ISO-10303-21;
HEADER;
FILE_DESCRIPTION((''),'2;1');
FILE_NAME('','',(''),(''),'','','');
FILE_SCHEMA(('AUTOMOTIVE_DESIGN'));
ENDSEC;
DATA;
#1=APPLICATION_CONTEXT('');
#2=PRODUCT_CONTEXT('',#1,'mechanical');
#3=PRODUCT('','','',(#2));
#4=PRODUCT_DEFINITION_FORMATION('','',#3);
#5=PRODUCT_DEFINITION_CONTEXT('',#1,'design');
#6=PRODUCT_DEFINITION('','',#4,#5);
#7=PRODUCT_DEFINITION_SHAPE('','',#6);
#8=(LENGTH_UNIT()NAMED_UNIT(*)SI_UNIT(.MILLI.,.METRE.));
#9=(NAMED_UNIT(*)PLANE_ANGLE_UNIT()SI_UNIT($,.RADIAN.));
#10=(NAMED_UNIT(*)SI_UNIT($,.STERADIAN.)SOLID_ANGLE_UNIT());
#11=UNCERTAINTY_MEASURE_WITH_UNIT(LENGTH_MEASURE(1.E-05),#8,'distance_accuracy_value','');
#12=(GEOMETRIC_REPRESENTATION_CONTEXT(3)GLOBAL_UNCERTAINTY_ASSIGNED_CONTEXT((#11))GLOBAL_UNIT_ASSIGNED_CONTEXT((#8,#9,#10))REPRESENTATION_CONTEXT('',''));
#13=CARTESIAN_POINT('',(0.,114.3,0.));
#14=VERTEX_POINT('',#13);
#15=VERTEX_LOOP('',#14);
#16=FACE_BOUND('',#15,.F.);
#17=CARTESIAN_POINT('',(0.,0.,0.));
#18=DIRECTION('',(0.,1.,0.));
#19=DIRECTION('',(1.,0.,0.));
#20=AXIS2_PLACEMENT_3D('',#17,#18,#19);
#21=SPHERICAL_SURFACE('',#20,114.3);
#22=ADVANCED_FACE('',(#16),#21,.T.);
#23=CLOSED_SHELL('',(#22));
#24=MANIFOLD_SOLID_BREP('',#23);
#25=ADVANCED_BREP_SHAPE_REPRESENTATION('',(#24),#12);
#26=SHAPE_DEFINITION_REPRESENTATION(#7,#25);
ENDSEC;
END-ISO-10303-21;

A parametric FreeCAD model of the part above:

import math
import FreeCAD as App
import Part
import Sketcher

V = App.Vector
Q = App.Units.Quantity

doc = App.newDocument("Part")
params = doc.addObject("Spreadsheet::Sheet", "Params")
for row, (alias, value) in enumerate([
    ("sketch1_radius", "4.5 in"),
    ("revolution_angle", "360 deg"),
], start=1):
    params.set(f"A{row}", alias)
    params.set(f"B{row}", "=" + value)
    params.setAlias(f"B{row}", alias)

body = doc.addObject("PartDesign::Body", "Body")

sketch1 = body.newObject("Sketcher::SketchObject", "Sketch")
sketch1.AttachmentSupport = (doc.getObject("XY_Plane"), [""])
sketch1.MapMode = "FlatFace"
sketch1.addGeometry([
    Part.LineSegment(V(0, 114.3, 0), V(0, -114.3, 0)),
    Part.ArcOfCircle(Part.Circle(V(0, 0, 0), V(0, 0, 1), 114.3), math.radians(-90), math.radians(90)),
], False)
sketch1.addConstraint([
    Sketcher.Constraint("Coincident", 0, 1, 1, 2),
    Sketcher.Constraint("Coincident", 1, 1, 0, 2),
    Sketcher.Constraint("Vertical", 0),
    Sketcher.Constraint("Coincident", 1, 3, -1, 1),
    Sketcher.Constraint("PointOnObject", 0, 1, -2),
    Sketcher.Constraint("Radius", 1, Q("4.5 in")),
])
sketch1.setExpression("Constraints[5]", "Params.sketch1_radius")
revolution = body.newObject("PartDesign::Revolution", "Revolution")
revolution.Profile = sketch1
revolution.ReferenceAxis = (sketch1, ["V_Axis"])
revolution.setExpression("Angle", "Params.revolution_angle")

doc.recompute()
